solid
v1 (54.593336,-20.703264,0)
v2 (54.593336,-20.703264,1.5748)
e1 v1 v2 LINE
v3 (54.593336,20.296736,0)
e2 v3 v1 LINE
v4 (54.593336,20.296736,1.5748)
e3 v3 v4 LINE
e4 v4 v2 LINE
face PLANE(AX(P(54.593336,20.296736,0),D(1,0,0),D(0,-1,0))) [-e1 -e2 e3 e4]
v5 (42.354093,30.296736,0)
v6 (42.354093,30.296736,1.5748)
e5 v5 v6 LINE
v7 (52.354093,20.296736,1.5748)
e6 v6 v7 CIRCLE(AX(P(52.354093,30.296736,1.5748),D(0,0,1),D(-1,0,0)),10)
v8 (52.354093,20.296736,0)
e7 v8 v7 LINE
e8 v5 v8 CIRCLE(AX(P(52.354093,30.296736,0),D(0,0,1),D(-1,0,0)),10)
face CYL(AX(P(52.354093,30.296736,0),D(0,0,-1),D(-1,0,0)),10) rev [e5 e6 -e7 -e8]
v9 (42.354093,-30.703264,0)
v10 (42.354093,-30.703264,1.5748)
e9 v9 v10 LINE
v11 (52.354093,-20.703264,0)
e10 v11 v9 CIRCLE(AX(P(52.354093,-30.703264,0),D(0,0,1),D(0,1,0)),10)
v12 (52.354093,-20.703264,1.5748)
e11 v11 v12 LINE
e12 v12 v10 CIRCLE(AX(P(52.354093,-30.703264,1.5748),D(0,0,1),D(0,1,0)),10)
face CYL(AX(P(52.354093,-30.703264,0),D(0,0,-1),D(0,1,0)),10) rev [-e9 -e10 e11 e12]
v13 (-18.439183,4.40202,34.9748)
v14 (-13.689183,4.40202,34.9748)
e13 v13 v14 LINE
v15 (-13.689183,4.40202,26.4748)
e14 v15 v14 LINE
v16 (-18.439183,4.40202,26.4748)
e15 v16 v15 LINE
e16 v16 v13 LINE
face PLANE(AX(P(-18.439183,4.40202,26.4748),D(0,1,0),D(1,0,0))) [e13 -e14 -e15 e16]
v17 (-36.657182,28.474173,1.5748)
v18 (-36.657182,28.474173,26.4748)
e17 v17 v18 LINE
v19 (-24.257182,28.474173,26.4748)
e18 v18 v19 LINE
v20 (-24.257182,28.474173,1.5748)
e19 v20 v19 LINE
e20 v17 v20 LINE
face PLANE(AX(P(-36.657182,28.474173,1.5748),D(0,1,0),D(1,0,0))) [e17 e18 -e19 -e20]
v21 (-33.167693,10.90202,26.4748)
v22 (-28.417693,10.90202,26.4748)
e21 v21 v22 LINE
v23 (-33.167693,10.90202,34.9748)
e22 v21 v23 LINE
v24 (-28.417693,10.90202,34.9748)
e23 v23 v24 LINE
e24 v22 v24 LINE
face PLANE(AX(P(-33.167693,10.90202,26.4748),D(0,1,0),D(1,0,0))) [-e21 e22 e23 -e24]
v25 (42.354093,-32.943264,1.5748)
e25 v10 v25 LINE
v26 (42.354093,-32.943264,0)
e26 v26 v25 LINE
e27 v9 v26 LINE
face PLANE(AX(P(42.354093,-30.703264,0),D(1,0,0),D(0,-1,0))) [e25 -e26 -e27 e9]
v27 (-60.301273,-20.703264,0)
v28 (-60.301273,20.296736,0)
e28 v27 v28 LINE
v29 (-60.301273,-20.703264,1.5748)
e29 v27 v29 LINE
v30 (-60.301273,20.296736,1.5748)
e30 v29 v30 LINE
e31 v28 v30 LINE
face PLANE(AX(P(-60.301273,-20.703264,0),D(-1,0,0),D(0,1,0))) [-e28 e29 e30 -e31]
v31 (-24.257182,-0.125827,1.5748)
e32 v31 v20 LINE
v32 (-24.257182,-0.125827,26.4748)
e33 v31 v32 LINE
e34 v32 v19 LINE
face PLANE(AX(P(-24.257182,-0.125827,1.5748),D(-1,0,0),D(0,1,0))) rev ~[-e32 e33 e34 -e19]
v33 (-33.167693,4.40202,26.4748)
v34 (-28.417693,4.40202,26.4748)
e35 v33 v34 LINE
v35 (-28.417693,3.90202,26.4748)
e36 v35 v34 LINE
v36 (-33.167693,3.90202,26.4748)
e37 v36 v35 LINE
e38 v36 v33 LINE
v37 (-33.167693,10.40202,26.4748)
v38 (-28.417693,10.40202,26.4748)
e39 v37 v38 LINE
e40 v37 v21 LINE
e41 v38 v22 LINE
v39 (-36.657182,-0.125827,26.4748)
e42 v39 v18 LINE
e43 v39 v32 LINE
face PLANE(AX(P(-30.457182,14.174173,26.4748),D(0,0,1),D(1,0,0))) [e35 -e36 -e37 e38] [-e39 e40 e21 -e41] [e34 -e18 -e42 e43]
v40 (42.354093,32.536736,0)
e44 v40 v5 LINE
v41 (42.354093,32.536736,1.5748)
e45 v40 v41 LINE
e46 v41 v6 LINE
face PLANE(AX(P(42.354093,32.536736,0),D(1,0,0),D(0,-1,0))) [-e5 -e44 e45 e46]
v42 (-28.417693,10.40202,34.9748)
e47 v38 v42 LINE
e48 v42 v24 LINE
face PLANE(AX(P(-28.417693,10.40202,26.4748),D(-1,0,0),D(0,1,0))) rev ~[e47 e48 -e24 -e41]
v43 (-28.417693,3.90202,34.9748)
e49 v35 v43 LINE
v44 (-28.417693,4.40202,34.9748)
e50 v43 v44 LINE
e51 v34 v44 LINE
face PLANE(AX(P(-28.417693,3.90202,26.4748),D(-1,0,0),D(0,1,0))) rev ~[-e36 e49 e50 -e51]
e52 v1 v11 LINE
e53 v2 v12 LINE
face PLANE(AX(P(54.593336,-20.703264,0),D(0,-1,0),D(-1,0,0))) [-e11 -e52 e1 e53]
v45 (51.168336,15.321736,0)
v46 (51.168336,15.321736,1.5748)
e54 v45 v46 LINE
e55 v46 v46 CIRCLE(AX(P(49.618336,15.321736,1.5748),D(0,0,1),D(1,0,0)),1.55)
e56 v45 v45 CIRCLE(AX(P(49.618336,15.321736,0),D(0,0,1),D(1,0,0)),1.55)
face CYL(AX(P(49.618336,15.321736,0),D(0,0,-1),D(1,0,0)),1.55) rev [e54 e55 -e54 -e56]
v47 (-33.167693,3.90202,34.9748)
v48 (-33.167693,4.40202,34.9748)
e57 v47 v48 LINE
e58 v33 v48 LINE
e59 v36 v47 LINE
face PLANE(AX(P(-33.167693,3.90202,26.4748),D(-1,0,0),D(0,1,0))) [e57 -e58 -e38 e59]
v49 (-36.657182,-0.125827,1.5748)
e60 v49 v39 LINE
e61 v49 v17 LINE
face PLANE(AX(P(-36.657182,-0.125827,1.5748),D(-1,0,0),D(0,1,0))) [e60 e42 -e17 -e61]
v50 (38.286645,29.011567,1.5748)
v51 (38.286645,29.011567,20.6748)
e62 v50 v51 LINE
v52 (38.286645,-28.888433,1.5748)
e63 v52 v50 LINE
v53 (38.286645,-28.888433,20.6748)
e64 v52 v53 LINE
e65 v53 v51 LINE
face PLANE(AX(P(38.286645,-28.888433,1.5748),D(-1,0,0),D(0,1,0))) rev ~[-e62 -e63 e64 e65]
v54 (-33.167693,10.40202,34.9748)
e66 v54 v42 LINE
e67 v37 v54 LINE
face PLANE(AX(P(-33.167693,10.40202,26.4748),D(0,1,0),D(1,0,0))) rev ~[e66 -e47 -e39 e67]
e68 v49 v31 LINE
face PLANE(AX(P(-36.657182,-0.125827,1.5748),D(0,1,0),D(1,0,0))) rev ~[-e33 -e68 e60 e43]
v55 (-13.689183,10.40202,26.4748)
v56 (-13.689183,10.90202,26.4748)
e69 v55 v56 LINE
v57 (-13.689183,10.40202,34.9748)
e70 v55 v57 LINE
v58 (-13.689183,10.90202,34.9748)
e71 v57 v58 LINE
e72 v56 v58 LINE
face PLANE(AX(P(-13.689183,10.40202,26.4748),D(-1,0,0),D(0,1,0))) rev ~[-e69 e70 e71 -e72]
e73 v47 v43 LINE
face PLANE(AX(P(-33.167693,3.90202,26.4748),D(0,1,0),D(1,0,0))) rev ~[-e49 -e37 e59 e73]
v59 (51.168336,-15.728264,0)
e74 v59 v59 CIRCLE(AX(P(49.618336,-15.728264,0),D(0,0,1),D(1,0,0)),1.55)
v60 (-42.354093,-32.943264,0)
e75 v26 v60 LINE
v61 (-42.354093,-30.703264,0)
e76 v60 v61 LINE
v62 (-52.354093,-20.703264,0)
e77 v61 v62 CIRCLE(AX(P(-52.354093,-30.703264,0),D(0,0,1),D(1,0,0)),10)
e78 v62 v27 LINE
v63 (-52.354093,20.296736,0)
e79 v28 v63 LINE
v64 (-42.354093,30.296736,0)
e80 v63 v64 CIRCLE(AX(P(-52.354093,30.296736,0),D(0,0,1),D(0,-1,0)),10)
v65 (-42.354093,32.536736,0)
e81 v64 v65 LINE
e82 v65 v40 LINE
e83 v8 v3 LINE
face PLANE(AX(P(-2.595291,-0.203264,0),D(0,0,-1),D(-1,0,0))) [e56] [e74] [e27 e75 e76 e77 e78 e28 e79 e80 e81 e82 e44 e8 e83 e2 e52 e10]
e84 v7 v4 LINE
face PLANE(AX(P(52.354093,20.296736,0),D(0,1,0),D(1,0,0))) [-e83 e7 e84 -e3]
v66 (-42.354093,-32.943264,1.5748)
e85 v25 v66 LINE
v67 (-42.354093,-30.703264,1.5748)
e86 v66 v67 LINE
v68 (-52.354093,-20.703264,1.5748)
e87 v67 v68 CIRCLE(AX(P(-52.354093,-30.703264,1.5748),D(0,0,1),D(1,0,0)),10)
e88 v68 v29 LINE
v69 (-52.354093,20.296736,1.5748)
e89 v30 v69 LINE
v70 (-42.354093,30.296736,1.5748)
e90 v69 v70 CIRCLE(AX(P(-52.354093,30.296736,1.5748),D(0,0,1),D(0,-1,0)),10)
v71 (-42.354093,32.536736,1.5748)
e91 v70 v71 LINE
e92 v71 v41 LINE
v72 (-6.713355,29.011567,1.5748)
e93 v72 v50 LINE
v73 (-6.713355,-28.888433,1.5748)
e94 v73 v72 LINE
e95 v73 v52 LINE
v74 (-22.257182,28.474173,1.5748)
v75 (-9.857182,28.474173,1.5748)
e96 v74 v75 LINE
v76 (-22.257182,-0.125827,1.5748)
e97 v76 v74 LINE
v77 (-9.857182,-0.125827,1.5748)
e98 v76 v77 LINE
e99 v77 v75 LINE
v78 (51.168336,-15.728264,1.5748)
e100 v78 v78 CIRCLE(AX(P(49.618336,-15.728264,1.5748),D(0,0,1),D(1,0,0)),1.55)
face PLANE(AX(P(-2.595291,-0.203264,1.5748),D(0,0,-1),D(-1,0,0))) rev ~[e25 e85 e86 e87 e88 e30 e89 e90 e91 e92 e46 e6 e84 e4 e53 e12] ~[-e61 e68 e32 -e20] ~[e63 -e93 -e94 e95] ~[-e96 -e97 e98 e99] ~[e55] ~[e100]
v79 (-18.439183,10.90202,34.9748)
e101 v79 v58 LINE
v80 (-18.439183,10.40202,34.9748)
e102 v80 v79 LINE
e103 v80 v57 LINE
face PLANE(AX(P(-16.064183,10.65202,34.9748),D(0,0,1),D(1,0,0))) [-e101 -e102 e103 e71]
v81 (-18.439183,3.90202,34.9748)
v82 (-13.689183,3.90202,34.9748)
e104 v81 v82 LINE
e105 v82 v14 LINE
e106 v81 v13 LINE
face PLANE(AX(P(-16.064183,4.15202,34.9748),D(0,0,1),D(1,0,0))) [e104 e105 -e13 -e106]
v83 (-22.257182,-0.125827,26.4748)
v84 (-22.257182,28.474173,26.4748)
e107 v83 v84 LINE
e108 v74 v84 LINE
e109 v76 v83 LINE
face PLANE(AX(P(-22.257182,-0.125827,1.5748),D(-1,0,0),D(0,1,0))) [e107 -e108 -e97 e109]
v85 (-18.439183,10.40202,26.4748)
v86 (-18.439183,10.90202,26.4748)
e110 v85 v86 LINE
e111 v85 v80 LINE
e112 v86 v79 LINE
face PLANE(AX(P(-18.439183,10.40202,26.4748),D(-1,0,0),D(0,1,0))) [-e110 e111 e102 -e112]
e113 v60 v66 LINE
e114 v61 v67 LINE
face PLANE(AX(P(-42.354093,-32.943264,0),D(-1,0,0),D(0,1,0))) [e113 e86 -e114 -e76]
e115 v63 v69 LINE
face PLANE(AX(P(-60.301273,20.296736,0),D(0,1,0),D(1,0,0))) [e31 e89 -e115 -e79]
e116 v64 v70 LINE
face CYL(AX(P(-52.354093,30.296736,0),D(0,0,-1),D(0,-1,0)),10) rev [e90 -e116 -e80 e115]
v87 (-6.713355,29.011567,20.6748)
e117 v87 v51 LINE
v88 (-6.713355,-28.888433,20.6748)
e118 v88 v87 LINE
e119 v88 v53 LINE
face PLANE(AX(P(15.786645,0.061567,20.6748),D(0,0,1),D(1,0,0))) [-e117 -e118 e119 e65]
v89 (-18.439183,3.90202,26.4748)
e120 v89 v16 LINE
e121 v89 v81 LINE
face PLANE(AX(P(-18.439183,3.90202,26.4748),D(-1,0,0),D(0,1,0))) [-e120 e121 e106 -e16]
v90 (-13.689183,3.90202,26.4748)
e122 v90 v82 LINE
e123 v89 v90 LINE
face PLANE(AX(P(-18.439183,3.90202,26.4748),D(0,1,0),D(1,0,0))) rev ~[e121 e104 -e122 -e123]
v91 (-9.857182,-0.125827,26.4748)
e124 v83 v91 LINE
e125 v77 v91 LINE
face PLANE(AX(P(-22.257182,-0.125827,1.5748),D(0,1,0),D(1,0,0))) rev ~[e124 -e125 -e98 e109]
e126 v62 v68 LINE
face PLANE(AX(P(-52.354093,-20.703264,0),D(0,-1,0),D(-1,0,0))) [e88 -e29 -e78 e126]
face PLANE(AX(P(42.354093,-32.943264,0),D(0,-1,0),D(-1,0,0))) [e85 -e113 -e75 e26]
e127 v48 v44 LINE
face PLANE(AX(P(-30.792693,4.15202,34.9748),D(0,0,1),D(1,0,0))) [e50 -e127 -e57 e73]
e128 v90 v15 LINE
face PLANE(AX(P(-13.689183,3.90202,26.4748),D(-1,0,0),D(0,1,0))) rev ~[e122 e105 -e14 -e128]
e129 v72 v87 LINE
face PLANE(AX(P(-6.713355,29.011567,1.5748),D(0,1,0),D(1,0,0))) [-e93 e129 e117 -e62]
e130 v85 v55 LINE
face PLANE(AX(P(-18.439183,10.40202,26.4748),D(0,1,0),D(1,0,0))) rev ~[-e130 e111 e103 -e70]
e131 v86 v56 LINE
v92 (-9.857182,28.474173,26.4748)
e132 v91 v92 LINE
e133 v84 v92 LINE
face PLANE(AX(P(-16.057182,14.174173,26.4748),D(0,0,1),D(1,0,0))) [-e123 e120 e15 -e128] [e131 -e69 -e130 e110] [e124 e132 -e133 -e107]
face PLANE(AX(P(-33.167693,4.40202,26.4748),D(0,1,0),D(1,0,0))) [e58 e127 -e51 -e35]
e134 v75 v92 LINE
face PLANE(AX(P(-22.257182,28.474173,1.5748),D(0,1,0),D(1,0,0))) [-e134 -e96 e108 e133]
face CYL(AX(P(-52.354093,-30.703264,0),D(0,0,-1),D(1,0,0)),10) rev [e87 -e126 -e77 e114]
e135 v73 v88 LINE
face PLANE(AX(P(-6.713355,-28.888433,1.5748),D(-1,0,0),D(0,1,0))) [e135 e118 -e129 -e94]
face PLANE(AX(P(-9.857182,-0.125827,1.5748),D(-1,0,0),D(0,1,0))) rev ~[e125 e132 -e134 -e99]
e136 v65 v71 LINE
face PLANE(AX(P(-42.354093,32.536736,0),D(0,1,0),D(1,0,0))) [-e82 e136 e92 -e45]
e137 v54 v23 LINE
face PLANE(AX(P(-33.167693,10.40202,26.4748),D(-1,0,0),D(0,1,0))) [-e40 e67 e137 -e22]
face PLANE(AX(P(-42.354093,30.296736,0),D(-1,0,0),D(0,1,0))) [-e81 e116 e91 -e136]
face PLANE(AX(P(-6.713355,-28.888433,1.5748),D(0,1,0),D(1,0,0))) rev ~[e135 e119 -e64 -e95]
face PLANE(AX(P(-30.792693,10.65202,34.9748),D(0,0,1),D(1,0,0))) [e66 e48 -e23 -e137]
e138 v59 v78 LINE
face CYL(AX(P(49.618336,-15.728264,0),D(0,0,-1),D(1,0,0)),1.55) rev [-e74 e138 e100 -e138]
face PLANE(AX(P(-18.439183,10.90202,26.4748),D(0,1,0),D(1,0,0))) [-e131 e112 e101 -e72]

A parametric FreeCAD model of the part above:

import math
import FreeCAD as App
import Part
import Sketcher
from FreeCAD import Vector


def add_polygon(sketch, points):
    """Adds a closed chain of lines whose ends are joined by coincident constraints."""
    first, n = sketch.GeometryCount, len(points)
    for a, b in zip(points, points[1:] + points[:1]):
        sketch.addGeometry(Part.LineSegment(App.Vector(*a, 0), App.Vector(*b, 0)), False)
    for i in range(n):
        sketch.addConstraint(Sketcher.Constraint("Coincident", first + i, 2, first + (i + 1) % n, 1))

doc = App.newDocument("Part")
body = doc.addObject("PartDesign::Body", "Body")

# Sketch on XY plane
sketch1 = doc.addObject("Sketcher::SketchObject", "Sketch")
body.addObject(sketch1)
sketch1.AttachmentSupport = (doc.XY_Plane, [""])
sketch1.MapMode = "FlatFace"
sketch1.addGeometry([
    Part.LineSegment(Vector(42.4, -32.9, 0), Vector(42.4, -30.7, 0)),  # 0
    Part.ArcOfCircle(Part.Circle(Vector(52.4, -30.7, 0), Vector(0, 0, 1), 10), math.radians(90), math.radians(180)),  # 1
    Part.LineSegment(Vector(52.4, -20.7, 0), Vector(54.6, -20.7, 0)),  # 2
    Part.LineSegment(Vector(54.6, -20.7, 0), Vector(54.6, 20.3, 0)),  # 3
    Part.LineSegment(Vector(54.6, 20.3, 0), Vector(52.4, 20.3, 0)),  # 4
    Part.ArcOfCircle(Part.Circle(Vector(52.4, 30.3, 0), Vector(0, 0, 1), 10), math.radians(180), math.radians(270)),  # 5
    Part.LineSegment(Vector(42.4, 30.3, 0), Vector(42.4, 32.5, 0)),  # 6
    Part.LineSegment(Vector(42.4, 32.5, 0), Vector(-42.4, 32.5, 0)),  # 7
    Part.LineSegment(Vector(-42.4, 32.5, 0), Vector(-42.4, 30.3, 0)),  # 8
    Part.ArcOfCircle(Part.Circle(Vector(-52.4, 30.3, 0), Vector(0, 0, 1), 10), math.radians(-90), math.radians(0)),  # 9
    Part.LineSegment(Vector(-52.4, 20.3, 0), Vector(-60.3, 20.3, 0)),  # 10
    Part.LineSegment(Vector(-60.3, 20.3, 0), Vector(-60.3, -20.7, 0)),  # 11
    Part.LineSegment(Vector(-60.3, -20.7, 0), Vector(-52.4, -20.7, 0)),  # 12
    Part.ArcOfCircle(Part.Circle(Vector(-52.4, -30.7, 0), Vector(0, 0, 1), 10), math.radians(0), math.radians(90)),  # 13
    Part.LineSegment(Vector(-42.4, -30.7, 0), Vector(-42.4, -32.9, 0)),  # 14
    Part.LineSegment(Vector(-42.4, -32.9, 0), Vector(42.4, -32.9, 0)),  # 15
    Part.Circle(Vector(49.6, -15.7, 0), Vector(0, 0, 1), 1.6),  # 16
    Part.Circle(Vector(49.6, 15.3, 0), Vector(0, 0, 1), 1.6),  # 17
], False)
sketch1.addConstraint([
    Sketcher.Constraint("Tangent", 0, 2, 1, 2),
    Sketcher.Constraint("Tangent", 1, 1, 2, 1),
    Sketcher.Constraint("Coincident", 2, 2, 3, 1),
    Sketcher.Constraint("Coincident", 3, 2, 4, 1),
    Sketcher.Constraint("Tangent", 4, 2, 5, 2),
    Sketcher.Constraint("Tangent", 5, 1, 6, 1),
    Sketcher.Constraint("Coincident", 6, 2, 7, 1),
    Sketcher.Constraint("Coincident", 7, 2, 8, 1),
    Sketcher.Constraint("Tangent", 8, 2, 9, 2),
    Sketcher.Constraint("Tangent", 9, 1, 10, 1),
    Sketcher.Constraint("Coincident", 10, 2, 11, 1),
    Sketcher.Constraint("Coincident", 11, 2, 12, 1),
    Sketcher.Constraint("Tangent", 12, 2, 13, 2),
    Sketcher.Constraint("Tangent", 13, 1, 14, 1),
    Sketcher.Constraint("Coincident", 14, 2, 15, 1),
    Sketcher.Constraint("Coincident", 15, 2, 0, 1),
    Sketcher.Constraint("Vertical", 0),
    Sketcher.Constraint("Horizontal", 2),
    Sketcher.Constraint("Vertical", 3),
    Sketcher.Constraint("Horizontal", 4),
    Sketcher.Constraint("Vertical", 6),
    Sketcher.Constraint("Horizontal", 7),
    Sketcher.Constraint("Vertical", 8),
    Sketcher.Constraint("Horizontal", 10),
    Sketcher.Constraint("Vertical", 11),
    Sketcher.Constraint("Horizontal", 12),
    Sketcher.Constraint("Vertical", 14),
    Sketcher.Constraint("Horizontal", 15),
    Sketcher.Constraint("Equal", 1, 5),
    Sketcher.Constraint("Equal", 5, 9),
    Sketcher.Constraint("Equal", 9, 13),
    Sketcher.Constraint("Equal", 16, 17),
    Sketcher.Constraint("Symmetric", 5, 3, 9, 3, -2),
    Sketcher.Constraint("Symmetric", 1, 3, 13, 3, -2),
    Sketcher.Constraint("Vertical", 1, 3, 5, 3),
    Sketcher.Constraint("Vertical", 16, 3, 17, 3),
    Sketcher.Constraint("Equal", 0, 6),
    Sketcher.Constraint("Radius", 1, 10.0),
    Sketcher.Constraint("Diameter", 16, 3.1),
    Sketcher.Constraint("DistanceY", 3, 1, 3, 2, 41.0),
    Sketcher.Constraint("DistanceY", 0, 1, 0, 2, 2.24),
    Sketcher.Constraint("DistanceY", 16, 3, 17, 3, 31.05),
    Sketcher.Constraint("DistanceY", 1, 3, 16, 3, 14.975),
    Sketcher.Constraint("DistanceX", 16, 3, 2, 2, 4.975),
    Sketcher.Constraint("DistanceX", 10, 2, 10, 1, 7.94718),
    Sketcher.Constraint("DistanceX", 2, 1, 2, 2, 2.239243),
    Sketcher.Constraint("DistanceX", 7, 2, 7, 1, 84.708186),
    Sketcher.Constraint("DistanceY", 1, 3, -1, 1, 30.703264),
])
pad1 = doc.addObject("PartDesign::Pad", "Pad")
body.addObject(pad1)
pad1.Profile = sketch1
pad1.Length = 1.5748

# Sketch on XY plane
sketch2 = doc.addObject("Sketcher::SketchObject", "Sketch001")
body.addObject(sketch2)
sketch2.AttachmentSupport = (doc.XY_Plane, [""])
sketch2.MapMode = "FlatFace"
sketch2.AttachmentOffset = App.Placement(Vector(0, 0, 1.5748), App.Rotation())
add_polygon(sketch2, [(-37, 28), (-37, 0), (-24, 0), (-24, 28)])  # lines 0-3
add_polygon(sketch2, [(-22, 28), (-22, 0), (-10, 0), (-10, 28)])  # lines 4-7
sketch2.addConstraint([
    Sketcher.Constraint("Vertical", 0),
    Sketcher.Constraint("Horizontal", 1),
    Sketcher.Constraint("Vertical", 2),
    Sketcher.Constraint("Horizontal", 3),
    Sketcher.Constraint("Vertical", 4),
    Sketcher.Constraint("Horizontal", 5),
    Sketcher.Constraint("Vertical", 6),
    Sketcher.Constraint("Horizontal", 7),
    Sketcher.Constraint("Horizontal", 1, 2, 4, 2),
    Sketcher.Constraint("Horizontal", 3, 2, 6, 2),
    Sketcher.Constraint("Equal", 3, 5),
    Sketcher.Constraint("DistanceX", 1, 1, 1, 2, 12.4),
    Sketcher.Constraint("DistanceY", 0, 2, 0, 1, 28.6),
    Sketcher.Constraint("DistanceX", 1, 2, 4, 2, 2.0),
    Sketcher.Constraint("DistanceX", 0, 2, -1, 1, 36.657182),
    Sketcher.Constraint("DistanceY", 0, 2, -1, 1, 0.125827),
])
pad2 = doc.addObject("PartDesign::Pad", "Pad001")
body.addObject(pad2)
pad2.Profile = sketch2
pad2.Length = 24.9

# Sketch on XY plane
sketch3 = doc.addObject("Sketcher::SketchObject", "Sketch002")
body.addObject(sketch3)
sketch3.AttachmentSupport = (doc.XY_Plane, [""])
sketch3.MapMode = "FlatFace"
sketch3.AttachmentOffset = App.Placement(Vector(0, 0, 26.4748), App.Rotation())
add_polygon(sketch3, [(-18.44, 4.4), (-18.44, 3.9), (-13.69, 3.9), (-13.69, 4.4)])  # lines 0-3
add_polygon(sketch3, [(-18.44, 10.9), (-18.44, 10.4), (-13.69, 10.4), (-13.69, 10.9)])  # lines 4-7
add_polygon(sketch3, [(-33.17, 4.4), (-33.17, 3.9), (-28.42, 3.9), (-28.42, 4.4)])  # lines 8-11
add_polygon(sketch3, [(-33.17, 10.9), (-33.17, 10.4), (-28.42, 10.4), (-28.42, 10.9)])  # lines 12-15
sketch3.addConstraint([
    Sketcher.Constraint("Vertical", 0),
    Sketcher.Constraint("Horizontal", 1),
    Sketcher.Constraint("Vertical", 2),
    Sketcher.Constraint("Horizontal", 3),
    Sketcher.Constraint("Vertical", 4),
    Sketcher.Constraint("Horizontal", 5),
    Sketcher.Constraint("Vertical", 6),
    Sketcher.Constraint("Horizontal", 7),
    Sketcher.Constraint("Vertical", 8),
    Sketcher.Constraint("Horizontal", 9),
    Sketcher.Constraint("Vertical", 10),
    Sketcher.Constraint("Horizontal", 11),
    Sketcher.Constraint("Vertical", 12),
    Sketcher.Constraint("Horizontal", 13),
    Sketcher.Constraint("Vertical", 14),
    Sketcher.Constraint("Horizontal", 15),
    Sketcher.Constraint("Horizontal", 1, 2, 8, 2),
    Sketcher.Constraint("Horizontal", 3, 2, 10, 2),
    Sketcher.Constraint("Horizontal", 5, 2, 12, 2),
    Sketcher.Constraint("Horizontal", 7, 2, 14, 2),
    Sketcher.Constraint("Vertical", 3, 2, 4, 2),
    Sketcher.Constraint("Vertical", 2, 2, 5, 2),
    Sketcher.Constraint("Vertical", 11, 2, 12, 2),
    Sketcher.Constraint("Vertical", 10, 2, 13, 2),
    Sketcher.Constraint("Equal", 7, 9),
    Sketcher.Constraint("Equal", 2, 4),
    Sketcher.Constraint("DistanceY", 0, 2, 0, 1, 0.5),
    Sketcher.Constraint("DistanceY", 3, 2, 4, 2, 6.0),
    Sketcher.Constraint("DistanceX", 1, 1, 1, 2, 4.75),
    Sketcher.Constraint("DistanceY", -1, 1, 0, 2, 3.90202),
    Sketcher.Constraint("DistanceX", 8, 2, 0, 2, 14.72851),
    Sketcher.Constraint("DistanceX", 0, 2, -1, 1, 18.439183),
])
pad3 = doc.addObject("PartDesign::Pad", "Pad002")
body.addObject(pad3)
pad3.Profile = sketch3
pad3.Length = 8.5

# Sketch on XY plane
sketch4 = doc.addObject("Sketcher::SketchObject", "Sketch003")
body.addObject(sketch4)
sketch4.AttachmentSupport = (doc.XY_Plane, [""])
sketch4.MapMode = "FlatFace"
sketch4.AttachmentOffset = App.Placement(Vector(0, 0, 1.5748), App.Rotation())
add_polygon(sketch4, [(-7, 29), (-7, -29), (38, -29), (38, 29)])  # lines 0-3
sketch4.addConstraint([
    Sketcher.Constraint("Vertical", 0),
    Sketcher.Constraint("Horizontal", 1),
    Sketcher.Constraint("Vertical", 2),
    Sketcher.Constraint("Horizontal", 3),
    Sketcher.Constraint("DistanceX", 1, 1, 1, 2, 45.0),
    Sketcher.Constraint("DistanceY", 0, 2, 0, 1, 57.9),
    Sketcher.Constraint("DistanceX", 0, 2, -1, 1, 6.713355),
    Sketcher.Constraint("DistanceY", 0, 2, -1, 1, 28.888433),
])
pad4 = doc.addObject("PartDesign::Pad", "Pad003")
body.addObject(pad4)
pad4.Profile = sketch4
pad4.Length = 19.1

doc.recompute()
